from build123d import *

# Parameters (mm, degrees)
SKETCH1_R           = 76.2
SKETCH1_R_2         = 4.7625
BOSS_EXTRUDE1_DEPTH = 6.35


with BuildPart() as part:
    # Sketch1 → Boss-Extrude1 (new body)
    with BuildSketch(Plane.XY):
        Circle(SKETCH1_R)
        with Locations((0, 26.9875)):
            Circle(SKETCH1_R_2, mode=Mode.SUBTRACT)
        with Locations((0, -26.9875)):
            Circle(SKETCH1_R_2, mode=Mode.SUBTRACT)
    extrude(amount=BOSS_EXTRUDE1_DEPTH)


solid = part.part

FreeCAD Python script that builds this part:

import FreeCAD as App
import Part
import Sketcher
Q = App.Units.Quantity

doc = App.newDocument("Part")
body = doc.addObject("PartDesign::Body", "Body")

sketch1 = body.newObject("Sketcher::SketchObject", "Sketch")
sketch1.AttachmentSupport = (doc.getObject("XY_Plane"), [""])
sketch1.MapMode = "FlatFace"
sketch1.addGeometry([
    Part.Circle(App.Vector(0, 0, 0), App.Vector(0, 0, 1), 76.2),
    Part.Circle(App.Vector(0, -27, 0), App.Vector(0, 0, 1), 4.8),
    Part.Circle(App.Vector(0, 27, 0), App.Vector(0, 0, 1), 4.8),
], False)
sketch1.addConstraint([
    Sketcher.Constraint("Coincident", 0, 3, -1, 1),
    Sketcher.Constraint("Equal", 1, 2),
    Sketcher.Constraint("Symmetric", 1, 3, 2, 3, -1, 1),
    Sketcher.Constraint("PointOnObject", 1, 3, -2),
    Sketcher.Constraint("Diameter", 0, Q("6 in")),
    Sketcher.Constraint("Diameter", 1, Q("0.375 in")),
    Sketcher.Constraint("DistanceY", 1, 3, -1, 1, Q("1.0625 in")),
])
pad1 = body.newObject("PartDesign::Pad", "Pad")
pad1.Profile = sketch1
pad1.Length = Q("0.25 in")

doc.recompute()
